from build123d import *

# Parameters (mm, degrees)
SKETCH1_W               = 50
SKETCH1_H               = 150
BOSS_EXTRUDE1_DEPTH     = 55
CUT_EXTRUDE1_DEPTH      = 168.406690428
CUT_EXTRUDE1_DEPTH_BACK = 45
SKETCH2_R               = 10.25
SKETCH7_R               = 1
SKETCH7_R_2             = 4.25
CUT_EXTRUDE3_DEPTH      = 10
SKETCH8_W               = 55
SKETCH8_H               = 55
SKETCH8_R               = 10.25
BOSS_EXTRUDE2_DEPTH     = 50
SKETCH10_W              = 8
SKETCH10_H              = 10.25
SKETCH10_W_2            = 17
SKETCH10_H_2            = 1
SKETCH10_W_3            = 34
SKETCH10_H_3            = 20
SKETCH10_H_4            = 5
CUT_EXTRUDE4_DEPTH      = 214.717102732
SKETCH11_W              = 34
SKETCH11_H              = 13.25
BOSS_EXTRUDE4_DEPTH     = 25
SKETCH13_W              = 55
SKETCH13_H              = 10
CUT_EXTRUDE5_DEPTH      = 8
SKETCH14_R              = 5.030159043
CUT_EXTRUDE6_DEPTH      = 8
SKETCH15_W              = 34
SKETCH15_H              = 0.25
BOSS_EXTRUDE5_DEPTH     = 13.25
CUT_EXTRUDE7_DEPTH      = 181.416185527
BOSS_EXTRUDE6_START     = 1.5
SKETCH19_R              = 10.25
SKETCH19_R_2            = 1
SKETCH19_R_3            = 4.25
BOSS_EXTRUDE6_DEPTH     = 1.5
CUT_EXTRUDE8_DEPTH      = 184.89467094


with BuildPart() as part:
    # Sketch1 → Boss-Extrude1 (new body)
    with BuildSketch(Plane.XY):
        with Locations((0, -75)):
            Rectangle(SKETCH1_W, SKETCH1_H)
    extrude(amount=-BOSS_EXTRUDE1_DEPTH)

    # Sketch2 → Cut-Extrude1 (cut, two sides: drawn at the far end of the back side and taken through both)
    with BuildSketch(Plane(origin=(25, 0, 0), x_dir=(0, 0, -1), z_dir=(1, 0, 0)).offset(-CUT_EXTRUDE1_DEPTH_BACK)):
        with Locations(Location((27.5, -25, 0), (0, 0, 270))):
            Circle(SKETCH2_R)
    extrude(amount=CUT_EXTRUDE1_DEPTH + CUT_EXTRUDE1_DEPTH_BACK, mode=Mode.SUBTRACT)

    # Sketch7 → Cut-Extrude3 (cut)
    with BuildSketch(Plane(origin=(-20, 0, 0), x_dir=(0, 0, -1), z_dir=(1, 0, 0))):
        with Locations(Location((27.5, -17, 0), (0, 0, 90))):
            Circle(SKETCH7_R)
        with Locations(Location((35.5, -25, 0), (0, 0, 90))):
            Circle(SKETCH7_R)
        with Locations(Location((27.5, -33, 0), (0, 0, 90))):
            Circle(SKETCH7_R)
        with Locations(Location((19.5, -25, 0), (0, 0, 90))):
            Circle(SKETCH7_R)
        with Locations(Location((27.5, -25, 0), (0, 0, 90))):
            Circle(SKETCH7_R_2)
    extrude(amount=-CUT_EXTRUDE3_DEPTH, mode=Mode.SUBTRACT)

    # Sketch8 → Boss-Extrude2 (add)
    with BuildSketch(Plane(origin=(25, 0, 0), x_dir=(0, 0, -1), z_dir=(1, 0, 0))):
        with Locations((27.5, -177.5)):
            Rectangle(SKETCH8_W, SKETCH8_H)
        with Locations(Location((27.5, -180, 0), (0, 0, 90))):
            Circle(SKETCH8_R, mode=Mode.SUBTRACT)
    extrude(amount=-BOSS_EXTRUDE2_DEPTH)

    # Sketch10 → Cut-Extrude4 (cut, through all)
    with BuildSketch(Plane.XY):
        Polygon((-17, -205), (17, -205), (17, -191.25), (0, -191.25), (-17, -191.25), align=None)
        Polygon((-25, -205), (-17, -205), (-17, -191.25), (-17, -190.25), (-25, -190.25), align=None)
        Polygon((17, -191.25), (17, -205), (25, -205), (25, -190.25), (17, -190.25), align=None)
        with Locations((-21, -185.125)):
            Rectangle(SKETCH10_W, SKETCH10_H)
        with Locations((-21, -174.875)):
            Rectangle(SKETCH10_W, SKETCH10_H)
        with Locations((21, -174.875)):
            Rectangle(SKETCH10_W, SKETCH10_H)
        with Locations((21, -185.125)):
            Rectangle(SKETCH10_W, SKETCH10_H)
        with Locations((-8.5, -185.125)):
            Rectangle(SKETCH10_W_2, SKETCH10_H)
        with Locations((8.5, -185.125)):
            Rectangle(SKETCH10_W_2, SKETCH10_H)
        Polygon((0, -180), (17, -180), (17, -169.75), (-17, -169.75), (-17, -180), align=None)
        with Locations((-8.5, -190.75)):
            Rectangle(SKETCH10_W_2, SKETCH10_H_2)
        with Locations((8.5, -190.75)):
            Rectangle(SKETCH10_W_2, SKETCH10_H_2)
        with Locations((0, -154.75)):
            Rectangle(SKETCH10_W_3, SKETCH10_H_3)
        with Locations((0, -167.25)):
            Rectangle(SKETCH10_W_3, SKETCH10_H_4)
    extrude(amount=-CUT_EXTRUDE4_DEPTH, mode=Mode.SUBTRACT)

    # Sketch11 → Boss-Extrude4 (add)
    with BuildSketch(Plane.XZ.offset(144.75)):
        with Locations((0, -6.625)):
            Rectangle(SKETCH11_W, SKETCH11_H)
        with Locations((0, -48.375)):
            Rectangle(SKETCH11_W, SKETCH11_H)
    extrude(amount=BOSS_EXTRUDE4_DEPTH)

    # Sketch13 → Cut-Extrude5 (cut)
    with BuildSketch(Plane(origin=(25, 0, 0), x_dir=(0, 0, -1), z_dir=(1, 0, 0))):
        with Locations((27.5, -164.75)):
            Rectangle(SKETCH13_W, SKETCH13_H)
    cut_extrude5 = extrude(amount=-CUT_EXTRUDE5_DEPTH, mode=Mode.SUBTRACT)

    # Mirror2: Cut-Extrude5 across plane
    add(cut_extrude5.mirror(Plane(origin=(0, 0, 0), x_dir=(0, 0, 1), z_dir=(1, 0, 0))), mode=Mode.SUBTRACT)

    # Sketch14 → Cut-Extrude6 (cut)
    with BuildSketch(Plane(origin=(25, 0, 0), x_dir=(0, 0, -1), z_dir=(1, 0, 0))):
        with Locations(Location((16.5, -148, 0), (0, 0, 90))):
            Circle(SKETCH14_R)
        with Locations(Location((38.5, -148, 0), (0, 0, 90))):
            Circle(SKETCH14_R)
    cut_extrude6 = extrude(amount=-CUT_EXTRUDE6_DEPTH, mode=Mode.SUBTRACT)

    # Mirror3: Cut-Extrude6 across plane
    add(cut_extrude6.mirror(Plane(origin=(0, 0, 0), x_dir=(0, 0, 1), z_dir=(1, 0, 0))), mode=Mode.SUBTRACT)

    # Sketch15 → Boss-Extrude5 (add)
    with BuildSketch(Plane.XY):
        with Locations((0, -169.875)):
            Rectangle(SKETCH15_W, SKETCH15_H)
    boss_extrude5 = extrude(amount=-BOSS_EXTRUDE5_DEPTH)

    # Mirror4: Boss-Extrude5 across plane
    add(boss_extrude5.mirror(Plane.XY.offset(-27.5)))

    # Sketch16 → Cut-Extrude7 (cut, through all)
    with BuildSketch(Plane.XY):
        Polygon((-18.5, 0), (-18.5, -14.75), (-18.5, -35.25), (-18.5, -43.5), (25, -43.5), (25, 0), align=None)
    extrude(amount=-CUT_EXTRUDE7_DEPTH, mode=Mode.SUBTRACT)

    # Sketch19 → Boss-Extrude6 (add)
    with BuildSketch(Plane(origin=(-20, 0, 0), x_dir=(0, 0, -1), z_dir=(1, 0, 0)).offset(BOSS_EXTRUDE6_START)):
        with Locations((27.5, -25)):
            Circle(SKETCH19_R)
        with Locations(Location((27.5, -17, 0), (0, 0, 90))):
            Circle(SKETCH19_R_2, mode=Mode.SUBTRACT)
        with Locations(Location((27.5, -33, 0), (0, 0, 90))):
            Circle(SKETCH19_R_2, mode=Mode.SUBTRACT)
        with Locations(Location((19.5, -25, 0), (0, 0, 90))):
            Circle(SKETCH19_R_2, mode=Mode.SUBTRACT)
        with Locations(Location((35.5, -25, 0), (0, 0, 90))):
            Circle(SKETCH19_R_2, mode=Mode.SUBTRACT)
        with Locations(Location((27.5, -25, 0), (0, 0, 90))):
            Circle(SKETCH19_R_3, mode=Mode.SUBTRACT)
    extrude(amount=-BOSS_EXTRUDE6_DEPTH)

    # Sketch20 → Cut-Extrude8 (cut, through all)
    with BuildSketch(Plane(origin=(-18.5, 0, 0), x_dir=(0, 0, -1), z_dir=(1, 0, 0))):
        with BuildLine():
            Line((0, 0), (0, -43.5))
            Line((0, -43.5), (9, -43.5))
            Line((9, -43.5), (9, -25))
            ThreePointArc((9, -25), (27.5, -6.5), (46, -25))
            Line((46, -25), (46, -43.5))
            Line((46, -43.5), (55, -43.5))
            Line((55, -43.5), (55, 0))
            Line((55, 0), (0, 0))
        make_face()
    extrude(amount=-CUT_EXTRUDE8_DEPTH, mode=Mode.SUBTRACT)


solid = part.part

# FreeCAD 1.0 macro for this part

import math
import FreeCAD as App
import Part
import Sketcher

doc = App.newDocument("Part")
body = doc.addObject("PartDesign::Body", "Body")

# Sketch on XY plane
sketch1 = body.newObject("Sketcher::SketchObject", "Sketch")
sketch1.AttachmentSupport = (doc.getObject("XY_Plane"), [""])
sketch1.MapMode = "FlatFace"
sketch1.addGeometry([
    Part.LineSegment(App.Vector(-25, 0, 0), App.Vector(-25, -150, 0)),
    Part.LineSegment(App.Vector(-25, -150, 0), App.Vector(25, -150, 0)),
    Part.LineSegment(App.Vector(25, -150, 0), App.Vector(25, 0, 0)),
    Part.LineSegment(App.Vector(25, 0, 0), App.Vector(-25, 0, 0)),
], False)
sketch1.addConstraint([
    Sketcher.Constraint("Coincident", 0, 2, 1, 1),
    Sketcher.Constraint("Coincident", 1, 2, 2, 1),
    Sketcher.Constraint("Coincident", 2, 2, 3, 1),
    Sketcher.Constraint("Coincident", 3, 2, 0, 1),
    Sketcher.Constraint("Vertical", 0),
    Sketcher.Constraint("Horizontal", 1),
    Sketcher.Constraint("Vertical", 2),
    Sketcher.Constraint("Horizontal", 3),
    Sketcher.Constraint("Symmetric", 2, 2, 3, 2, -1, 1),
    Sketcher.Constraint("DistanceX", 1, 1, 1, 2, 50.0),
    Sketcher.Constraint("DistanceY", 0, 2, 0, 1, 150.0),
])
pad1 = body.newObject("PartDesign::Pad", "Pad")
pad1.Profile = sketch1
pad1.Length = 55
pad1.Reversed = True

# Sketch on YZ plane
sketch2 = body.newObject("Sketcher::SketchObject", "Sketch001")
sketch2.AttachmentSupport = (doc.getObject("YZ_Plane"), [""])
sketch2.MapMode = "FlatFace"
sketch2.AttachmentOffset = App.Placement(App.Vector(0, 0, 25), App.Rotation())
sketch2.addGeometry(Part.Circle(App.Vector(-25, -27.5, 0), App.Vector(0, 0, 1), 10.25), False)
sketch2.addConstraint([
    Sketcher.Constraint("Diameter", 0, 20.5),
    Sketcher.Constraint("DistanceX", 0, 3, -1, 1, 25.0),
    Sketcher.Constraint("DistanceY", 0, 3, -1, 1, 27.5),
])
pocket1 = body.newObject("PartDesign::Pocket", "Pocket")
pocket1.Profile = sketch2
pocket1.Type = "TwoLengths"
pocket1.Length = 168.40669
pocket1.Length2 = 45
pocket1.Reversed = True

# Sketch on YZ plane
sketch3 = body.newObject("Sketcher::SketchObject", "Sketch002")
sketch3.AttachmentSupport = (doc.getObject("YZ_Plane"), [""])
sketch3.MapMode = "FlatFace"
sketch3.AttachmentOffset = App.Placement(App.Vector(0, 0, -20), App.Rotation())
sketch3.addGeometry([
    Part.Circle(App.Vector(-17, -27.5, 0), App.Vector(0, 0, 1), 1),  # 0
    Part.Circle(App.Vector(-25, -35.5, 0), App.Vector(0, 0, 1), 1),  # 1
    Part.Circle(App.Vector(-33, -27.5, 0), App.Vector(0, 0, 1), 1),  # 2
    Part.Circle(App.Vector(-25, -19.5, 0), App.Vector(0, 0, 1), 1),  # 3
    Part.Circle(App.Vector(-25, -27.5, 0), App.Vector(0, 0, 1), 4.25),  # 4
], False)
sketch3.addConstraint([
    Sketcher.Constraint("Equal", 0, 1),
    Sketcher.Constraint("Equal", 1, 2),
    Sketcher.Constraint("Equal", 2, 3),
    Sketcher.Constraint("Horizontal", 0, 3, 2, 3),
    Sketcher.Constraint("Horizontal", 2, 3, 4, 3),
    Sketcher.Constraint("Vertical", 1, 3, 3, 3),
    Sketcher.Constraint("Vertical", 3, 3, 4, 3),
    Sketcher.Constraint("Diameter", 0, 2.0),
    Sketcher.Constraint("Diameter", 4, 8.5),
    Sketcher.Constraint("DistanceX", 0, 3, -1, 1, 17.0),
    Sketcher.Constraint("DistanceX", 1, 3, -1, 1, 25.0),
    Sketcher.Constraint("DistanceX", 2, 3, -1, 1, 33.0),
    Sketcher.Constraint("DistanceY", 1, 3, 0, 3, 8.0),
    Sketcher.Constraint("DistanceY", 0, 3, 3, 3, 8.0),
    Sketcher.Constraint("DistanceY", 0, 3, -1, 1, 27.5),
])
pocket2 = body.newObject("PartDesign::Pocket", "Pocket001")
pocket2.Profile = sketch3
pocket2.Length = 10

# Sketch on YZ plane
sketch4 = body.newObject("Sketcher::SketchObject", "Sketch003")
sketch4.AttachmentSupport = (doc.getObject("YZ_Plane"), [""])
sketch4.MapMode = "FlatFace"
sketch4.AttachmentOffset = App.Placement(App.Vector(0, 0, 25), App.Rotation())
sketch4.addGeometry([
    Part.LineSegment(App.Vector(-150, 0, 0), App.Vector(-205, 0, 0)),  # 0
    Part.LineSegment(App.Vector(-205, 0, 0), App.Vector(-205, -55, 0)),  # 1
    Part.LineSegment(App.Vector(-205, -55, 0), App.Vector(-150, -55, 0)),  # 2
    Part.LineSegment(App.Vector(-150, -55, 0), App.Vector(-150, 0, 0)),  # 3
    Part.Circle(App.Vector(-180, -27.5, 0), App.Vector(0, 0, 1), 10.25),  # 4
], False)
sketch4.addConstraint([
    Sketcher.Constraint("Coincident", 0, 2, 1, 1),
    Sketcher.Constraint("Coincident", 1, 2, 2, 1),
    Sketcher.Constraint("Coincident", 2, 2, 3, 1),
    Sketcher.Constraint("Coincident", 3, 2, 0, 1),
    Sketcher.Constraint("Horizontal", 0),
    Sketcher.Constraint("Vertical", 1),
    Sketcher.Constraint("Horizontal", 2),
    Sketcher.Constraint("Vertical", 3),
    Sketcher.Constraint("PointOnObject", 0, 2, -1),
    Sketcher.Constraint("Equal", 2, 1),
    Sketcher.Constraint("Diameter", 4, 20.5),
    Sketcher.Constraint("DistanceX", 0, 2, 0, 1, 55.0),
    Sketcher.Constraint("DistanceX", 4, 3, -1, 1, 180.0),
    Sketcher.Constraint("DistanceX", 0, 2, -1, 1, 205.0),
    Sketcher.Constraint("DistanceY", 4, 3, -1, 1, 27.5),
])
pad2 = body.newObject("PartDesign::Pad", "Pad001")
pad2.Profile = sketch4
pad2.Length = 50
pad2.Reversed = True

# Sketch on XY plane
sketch5 = body.newObject("Sketcher::SketchObject", "Sketch004")
sketch5.AttachmentSupport = (doc.getObject("XY_Plane"), [""])
sketch5.MapMode = "FlatFace"
sketch5.addGeometry([
    Part.LineSegment(App.Vector(-25, -169.75, 0), App.Vector(-25, -205, 0)),  # 0
    Part.LineSegment(App.Vector(-25, -205, 0), App.Vector(25, -205, 0)),  # 1
    Part.LineSegment(App.Vector(25, -205, 0), App.Vector(25, -169.75, 0)),  # 2
    Part.LineSegment(App.Vector(25, -169.75, 0), App.Vector(17, -169.75, 0)),  # 3
    Part.LineSegment(App.Vector(17, -169.75, 0), App.Vector(17, -144.75, 0)),  # 4
    Part.LineSegment(App.Vector(17, -144.75, 0), App.Vector(-17, -144.75, 0)),  # 5
    Part.LineSegment(App.Vector(-17, -144.75, 0), App.Vector(-17, -169.75, 0)),  # 6
    Part.LineSegment(App.Vector(-17, -169.75, 0), App.Vector(-25, -169.75, 0)),  # 7
], False)
sketch5.addConstraint([
    Sketcher.Constraint("Coincident", 0, 2, 1, 1),
    Sketcher.Constraint("Coincident", 1, 2, 2, 1),
    Sketcher.Constraint("Coincident", 2, 2, 3, 1),
    Sketcher.Constraint("Coincident", 3, 2, 4, 1),
    Sketcher.Constraint("Coincident", 4, 2, 5, 1),
    Sketcher.Constraint("Coincident", 5, 2, 6, 1),
    Sketcher.Constraint("Coincident", 6, 2, 7, 1),
    Sketcher.Constraint("Coincident", 7, 2, 0, 1),
    Sketcher.Constraint("Vertical", 0),
    Sketcher.Constraint("Horizontal", 1),
    Sketcher.Constraint("Vertical", 2),
    Sketcher.Constraint("Horizontal", 3),
    Sketcher.Constraint("Vertical", 4),
    Sketcher.Constraint("Horizontal", 5),
    Sketcher.Constraint("Vertical", 6),
    Sketcher.Constraint("Horizontal", 7),
    Sketcher.Constraint("Symmetric", 3, 2, 6, 2, -2),
    Sketcher.Constraint("Equal", 3, 7),
    Sketcher.Constraint("DistanceX", 1, 1, 1, 2, 50.0),
    Sketcher.Constraint("DistanceX", 3, 2, 3, 1, 8.0),
    Sketcher.Constraint("DistanceY", 4, 1, 4, 2, 25.0),
    Sketcher.Constraint("DistanceY", 0, 2, -1, 1, 205.0),
    Sketcher.Constraint("DistanceY", 0, 2, 0, 1, 35.25),
])
pocket3 = body.newObject("PartDesign::Pocket", "Pocket002")
pocket3.Profile = sketch5
pocket3.Type = "ThroughAll"

# Sketch on XZ plane
sketch6 = body.newObject("Sketcher::SketchObject", "Sketch005")
sketch6.AttachmentSupport = (doc.getObject("XZ_Plane"), [""])
sketch6.MapMode = "FlatFace"
sketch6.AttachmentOffset = App.Placement(App.Vector(0, 0, 144.75), App.Rotation())
sketch6.addGeometry([
    Part.LineSegment(App.Vector(-17, 0, 0), App.Vector(-17, -13.25, 0)),  # 0
    Part.LineSegment(App.Vector(-17, -13.25, 0), App.Vector(17, -13.25, 0)),  # 1
    Part.LineSegment(App.Vector(17, -13.25, 0), App.Vector(17, 0, 0)),  # 2
    Part.LineSegment(App.Vector(17, 0, 0), App.Vector(-17, 0, 0)),  # 3
    Part.LineSegment(App.Vector(-17, -41.75, 0), App.Vector(-17, -55, 0)),  # 4
    Part.LineSegment(App.Vector(-17, -55, 0), App.Vector(17, -55, 0)),  # 5
    Part.LineSegment(App.Vector(17, -55, 0), App.Vector(17, -41.75, 0)),  # 6
    Part.LineSegment(App.Vector(17, -41.75, 0), App.Vector(-17, -41.75, 0)),  # 7
], False)
sketch6.addConstraint([
    Sketcher.Constraint("Coincident", 0, 2, 1, 1),
    Sketcher.Constraint("Coincident", 1, 2, 2, 1),
    Sketcher.Constraint("Coincident", 2, 2, 3, 1),
    Sketcher.Constraint("Coincident", 3, 2, 0, 1),
    Sketcher.Constraint("Coincident", 4, 2, 5, 1),
    Sketcher.Constraint("Coincident", 5, 2, 6, 1),
    Sketcher.Constraint("Coincident", 6, 2, 7, 1),
    Sketcher.Constraint("Coincident", 7, 2, 4, 1),
    Sketcher.Constraint("Vertical", 0),
    Sketcher.Constraint("Horizontal", 1),
    Sketcher.Constraint("Vertical", 2),
    Sketcher.Constraint("Horizontal", 3),
    Sketcher.Constraint("Vertical", 4),
    Sketcher.Constraint("Horizontal", 5),
    Sketcher.Constraint("Vertical", 6),
    Sketcher.Constraint("Horizontal", 7),
    Sketcher.Constraint("Symmetric", 2, 2, 3, 2, -1, 1),
    Sketcher.Constraint("Vertical", 3, 2, 4, 2),
    Sketcher.Constraint("Vertical", 2, 2, 5, 2),
    Sketcher.Constraint("Equal", 2, 4),
    Sketcher.Constraint("DistanceX", 1, 1, 1, 2, 34.0),
    Sketcher.Constraint("DistanceY", 4, 2, -1, 1, 55.0),
    Sketcher.Constraint("DistanceY", 0, 2, 0, 1, 13.25),
])
pad3 = body.newObject("PartDesign::Pad", "Pad002")
pad3.Profile = sketch6
pad3.Length = 25

# Sketch on YZ plane
sketch7 = body.newObject("Sketcher::SketchObject", "Sketch006")
sketch7.AttachmentSupport = (doc.getObject("YZ_Plane"), [""])
sketch7.MapMode = "FlatFace"
sketch7.AttachmentOffset = App.Placement(App.Vector(0, 0, 25), App.Rotation())
sketch7.addGeometry([
    Part.LineSegment(App.Vector(-159.75, 0, 0), App.Vector(-169.75, 0, 0)),
    Part.LineSegment(App.Vector(-169.75, 0, 0), App.Vector(-169.75, -55, 0)),
    Part.LineSegment(App.Vector(-169.75, -55, 0), App.Vector(-159.75, -55, 0)),
    Part.LineSegment(App.Vector(-159.75, -55, 0), App.Vector(-159.75, 0, 0)),
], False)
sketch7.addConstraint([
    Sketcher.Constraint("Coincident", 0, 2, 1, 1),
    Sketcher.Constraint("Coincident", 1, 2, 2, 1),
    Sketcher.Constraint("Coincident", 2, 2, 3, 1),
    Sketcher.Constraint("Coincident", 3, 2, 0, 1),
    Sketcher.Constraint("Horizontal", 0),
    Sketcher.Constraint("Vertical", 1),
    Sketcher.Constraint("Horizontal", 2),
    Sketcher.Constraint("Vertical", 3),
    Sketcher.Constraint("PointOnObject", 0, 2, -1),
    Sketcher.Constraint("DistanceX", 0, 2, 0, 1, 10.0),
    Sketcher.Constraint("DistanceY", 1, 2, 1, 1, 55.0),
    Sketcher.Constraint("DistanceX", 0, 2, -1, 1, 169.75),
])
pocket4 = body.newObject("PartDesign::Pocket", "Pocket003")
pocket4.Profile = sketch7
pocket4.Length = 8
doc.recompute()

mirrored = body.newObject("PartDesign::Mirrored", "Mirrored")
mirrored.Originals = [pocket4]
mirrored.MirrorPlane = (doc.getObject("YZ_Plane"), [""])
body.Tip = mirrored

# Sketch on YZ plane
sketch8 = body.newObject("Sketcher::SketchObject", "Sketch007")
sketch8.AttachmentSupport = (doc.getObject("YZ_Plane"), [""])
sketch8.MapMode = "FlatFace"
sketch8.AttachmentOffset = App.Placement(App.Vector(0, 0, 25), App.Rotation())
sketch8.addGeometry([
    Part.Circle(App.Vector(-148, -16.5, 0), App.Vector(0, 0, 1), 5.030159),
    Part.Circle(App.Vector(-148, -38.5, 0), App.Vector(0, 0, 1), 5.030159),
], False)
sketch8.addConstraint([
    Sketcher.Constraint("Equal", 0, 1),
    Sketcher.Constraint("Vertical", 0, 3, 1, 3),
    Sketcher.Constraint("DistanceX", 0, 3, -1, 1, 148.0),
    Sketcher.Constraint("DistanceY", 1, 3, 0, 3, 22.0),
    Sketcher.Constraint("DistanceY", 0, 3, -1, 1, 16.5),
    Sketcher.Constraint("Diameter", 0, 10.060318),
])
pocket5 = body.newObject("PartDesign::Pocket", "Pocket004")
pocket5.Profile = sketch8
pocket5.Length = 8
doc.recompute()

mirrored2 = body.newObject("PartDesign::Mirrored", "Mirrored001")
mirrored2.Originals = [pocket5]
mirrored2.MirrorPlane = (doc.getObject("YZ_Plane"), [""])
body.Tip = mirrored2

# Sketch on XY plane
sketch9 = body.newObject("Sketcher::SketchObject", "Sketch008")
sketch9.AttachmentSupport = (doc.getObject("XY_Plane"), [""])
sketch9.MapMode = "FlatFace"
sketch9.addGeometry([
    Part.LineSegment(App.Vector(-17, -169.75, 0), App.Vector(-17, -170, 0)),
    Part.LineSegment(App.Vector(-17, -170, 0), App.Vector(17, -170, 0)),
    Part.LineSegment(App.Vector(17, -170, 0), App.Vector(17, -169.75, 0)),
    Part.LineSegment(App.Vector(17, -169.75, 0), App.Vector(-17, -169.75, 0)),
], False)
sketch9.addConstraint([
    Sketcher.Constraint("Coincident", 0, 2, 1, 1),
    Sketcher.Constraint("Coincident", 1, 2, 2, 1),
    Sketcher.Constraint("Coincident", 2, 2, 3, 1),
    Sketcher.Constraint("Coincident", 3, 2, 0, 1),
    Sketcher.Constraint("Vertical", 0),
    Sketcher.Constraint("Horizontal", 1),
    Sketcher.Constraint("Vertical", 2),
    Sketcher.Constraint("Horizontal", 3),
    Sketcher.Constraint("DistanceX", 1, 1, 1, 2, 34.0),
    Sketcher.Constraint("DistanceX", 0, 2, -1, 1, 17.0),
    Sketcher.Constraint("DistanceY", 0, 2, -1, 1, 170.0),
    Sketcher.Constraint("DistanceY", 0, 2, 0, 1, 0.25),
])
pad4 = body.newObject("PartDesign::Pad", "Pad003")
pad4.Profile = sketch9
pad4.Length = 13.25
pad4.Reversed = True
doc.recompute()

datumplane = body.newObject("PartDesign::Plane", "DatumPlane")
datumplane.AttachmentSupport = (doc.getObject("XY_Plane"), [""])
datumplane.MapMode = "FlatFace"
datumplane.AttachmentOffset = App.Placement(App.Vector(0, 0, -27.5), App.Rotation())
mirrored3 = body.newObject("PartDesign::Mirrored", "Mirrored002")
mirrored3.Originals = [pad4]
mirrored3.MirrorPlane = (datumplane, [""])
body.Tip = mirrored3

# Sketch on XY plane
sketch10 = body.newObject("Sketcher::SketchObject", "Sketch009")
sketch10.AttachmentSupport = (doc.getObject("XY_Plane"), [""])
sketch10.MapMode = "FlatFace"
sketch10.addGeometry([
    Part.LineSegment(App.Vector(-18.5, 0, 0), App.Vector(-18.5, -43.5, 0)),
    Part.LineSegment(App.Vector(-18.5, -43.5, 0), App.Vector(25, -43.5, 0)),
    Part.LineSegment(App.Vector(25, -43.5, 0), App.Vector(25, 0, 0)),
    Part.LineSegment(App.Vector(25, 0, 0), App.Vector(-18.5, 0, 0)),
], False)
sketch10.addConstraint([
    Sketcher.Constraint("Coincident", 0, 2, 1, 1),
    Sketcher.Constraint("Coincident", 1, 2, 2, 1),
    Sketcher.Constraint("Coincident", 2, 2, 3, 1),
    Sketcher.Constraint("Coincident", 3, 2, 0, 1),
    Sketcher.Constraint("Vertical", 0),
    Sketcher.Constraint("Horizontal", 1),
    Sketcher.Constraint("Vertical", 2),
    Sketcher.Constraint("Horizontal", 3),
    Sketcher.Constraint("PointOnObject", 2, 2, -1),
    Sketcher.Constraint("Equal", 3, 0),
    Sketcher.Constraint("DistanceX", 1, 1, 1, 2, 43.5),
    Sketcher.Constraint("DistanceX", -1, 1, 1, 2, 25.0),
])
pocket6 = body.newObject("PartDesign::Pocket", "Pocket005")
pocket6.Profile = sketch10
pocket6.Type = "ThroughAll"

# Sketch on YZ plane
sketch11 = body.newObject("Sketcher::SketchObject", "Sketch010")
sketch11.AttachmentSupport = (doc.getObject("YZ_Plane"), [""])
sketch11.MapMode = "FlatFace"
sketch11.AttachmentOffset = App.Placement(App.Vector(0, 0, -18.5), App.Rotation())
sketch11.addGeometry([
    Part.Circle(App.Vector(-25, -27.5, 0), App.Vector(0, 0, 1), 10.25),  # 0
    Part.Circle(App.Vector(-33, -27.5, 0), App.Vector(0, 0, 1), 1),  # 1
    Part.Circle(App.Vector(-25, -19.5, 0), App.Vector(0, 0, 1), 1),  # 2
    Part.Circle(App.Vector(-25, -27.5, 0), App.Vector(0, 0, 1), 4.25),  # 3
    Part.Circle(App.Vector(-25, -35.5, 0), App.Vector(0, 0, 1), 1),  # 4
    Part.Circle(App.Vector(-17, -27.5, 0), App.Vector(0, 0, 1), 1),  # 5
], False)
sketch11.addConstraint([
    Sketcher.Constraint("Coincident", 3, 3, 0, 3),
    Sketcher.Constraint("Equal", 1, 2),
    Sketcher.Constraint("Equal", 2, 4),
    Sketcher.Constraint("Equal", 4, 5),
    Sketcher.Constraint("Horizontal", 0, 3, 1, 3),
    Sketcher.Constraint("Horizontal", 3, 3, 5, 3),
    Sketcher.Constraint("Vertical", 0, 3, 2, 3),
    Sketcher.Constraint("Vertical", 3, 3, 4, 3),
    Sketcher.Constraint("Diameter", 1, 2.0),
    Sketcher.Constraint("Diameter", 0, 20.5),
    Sketcher.Constraint("Diameter", 3, 8.5),
    Sketcher.Constraint("DistanceX", 0, 3, -1, 1, 25.0),
    Sketcher.Constraint("DistanceX", 1, 3, -1, 1, 33.0),
    Sketcher.Constraint("DistanceX", 5, 3, -1, 1, 17.0),
    Sketcher.Constraint("DistanceY", 0, 3, 2, 3, 8.0),
    Sketcher.Constraint("DistanceY", 4, 3, 0, 3, 8.0),
    Sketcher.Constraint("DistanceY", 0, 3, -1, 1, 27.5),
])
pad5 = body.newObject("PartDesign::Pad", "Pad004")
pad5.Profile = sketch11
pad5.Length = 1.5
pad5.Reversed = True

# Sketch on YZ plane
sketch12 = body.newObject("Sketcher::SketchObject", "Sketch011")
sketch12.AttachmentSupport = (doc.getObject("YZ_Plane"), [""])
sketch12.MapMode = "FlatFace"
sketch12.AttachmentOffset = App.Placement(App.Vector(0, 0, -18.5), App.Rotation())
sketch12.addGeometry([
    Part.LineSegment(App.Vector(0, 0, 0), App.Vector(-43.5, 0, 0)),  # 0
    Part.LineSegment(App.Vector(-43.5, 0, 0), App.Vector(-43.5, -9, 0)),  # 1
    Part.LineSegment(App.Vector(-43.5, -9, 0), App.Vector(-25, -9, 0)),  # 2
    Part.ArcOfCircle(Part.Circle(App.Vector(-25, -27.5, 0), App.Vector(0, 0, 1), 18.5), math.radians(-90), math.radians(90)),  # 3
    Part.LineSegment(App.Vector(-25, -46, 0), App.Vector(-43.5, -46, 0)),  # 4
    Part.LineSegment(App.Vector(-43.5, -46, 0), App.Vector(-43.5, -55, 0)),  # 5
    Part.LineSegment(App.Vector(-43.5, -55, 0), App.Vector(0, -55, 0)),  # 6
    Part.LineSegment(App.Vector(0, -55, 0), App.Vector(0, 0, 0)),  # 7
], False)
sketch12.addConstraint([
    Sketcher.Constraint("Coincident", 0, 2, 1, 1),
    Sketcher.Constraint("Coincident", 1, 2, 2, 1),
    Sketcher.Constraint("Tangent", 2, 2, 3, 2),
    Sketcher.Constraint("Tangent", 3, 1, 4, 1),
    Sketcher.Constraint("Coincident", 4, 2, 5, 1),
    Sketcher.Constraint("Coincident", 5, 2, 6, 1),
    Sketcher.Constraint("Coincident", 6, 2, 7, 1),
    Sketcher.Constraint("Coincident", 7, 2, 0, 1),
    Sketcher.Constraint("Horizontal", 0),
    Sketcher.Constraint("Vertical", 1),
    Sketcher.Constraint("Horizontal", 2),
    Sketcher.Constraint("Horizontal", 4),
    Sketcher.Constraint("Vertical", 5),
    Sketcher.Constraint("Horizontal", 6),
    Sketcher.Constraint("Vertical", 7),
    Sketcher.Constraint("Coincident", 7, 2, -1, 1),
    Sketcher.Constraint("Vertical", 1, 2, 4, 2),
    Sketcher.Constraint("Equal", 1, 5),
    Sketcher.Constraint("Radius", 3, 18.5),
    Sketcher.Constraint("DistanceY", 1, 2, 1, 1, 9.0),
    Sketcher.Constraint("DistanceX", 0, 2, 0, 1, 43.5),
    Sketcher.Constraint("DistanceX", 2, 1, 2, 2, 18.5),
])
pocket7 = body.newObject("PartDesign::Pocket", "Pocket006")
pocket7.Profile = sketch12
pocket7.Type = "ThroughAll"

doc.recompute()
